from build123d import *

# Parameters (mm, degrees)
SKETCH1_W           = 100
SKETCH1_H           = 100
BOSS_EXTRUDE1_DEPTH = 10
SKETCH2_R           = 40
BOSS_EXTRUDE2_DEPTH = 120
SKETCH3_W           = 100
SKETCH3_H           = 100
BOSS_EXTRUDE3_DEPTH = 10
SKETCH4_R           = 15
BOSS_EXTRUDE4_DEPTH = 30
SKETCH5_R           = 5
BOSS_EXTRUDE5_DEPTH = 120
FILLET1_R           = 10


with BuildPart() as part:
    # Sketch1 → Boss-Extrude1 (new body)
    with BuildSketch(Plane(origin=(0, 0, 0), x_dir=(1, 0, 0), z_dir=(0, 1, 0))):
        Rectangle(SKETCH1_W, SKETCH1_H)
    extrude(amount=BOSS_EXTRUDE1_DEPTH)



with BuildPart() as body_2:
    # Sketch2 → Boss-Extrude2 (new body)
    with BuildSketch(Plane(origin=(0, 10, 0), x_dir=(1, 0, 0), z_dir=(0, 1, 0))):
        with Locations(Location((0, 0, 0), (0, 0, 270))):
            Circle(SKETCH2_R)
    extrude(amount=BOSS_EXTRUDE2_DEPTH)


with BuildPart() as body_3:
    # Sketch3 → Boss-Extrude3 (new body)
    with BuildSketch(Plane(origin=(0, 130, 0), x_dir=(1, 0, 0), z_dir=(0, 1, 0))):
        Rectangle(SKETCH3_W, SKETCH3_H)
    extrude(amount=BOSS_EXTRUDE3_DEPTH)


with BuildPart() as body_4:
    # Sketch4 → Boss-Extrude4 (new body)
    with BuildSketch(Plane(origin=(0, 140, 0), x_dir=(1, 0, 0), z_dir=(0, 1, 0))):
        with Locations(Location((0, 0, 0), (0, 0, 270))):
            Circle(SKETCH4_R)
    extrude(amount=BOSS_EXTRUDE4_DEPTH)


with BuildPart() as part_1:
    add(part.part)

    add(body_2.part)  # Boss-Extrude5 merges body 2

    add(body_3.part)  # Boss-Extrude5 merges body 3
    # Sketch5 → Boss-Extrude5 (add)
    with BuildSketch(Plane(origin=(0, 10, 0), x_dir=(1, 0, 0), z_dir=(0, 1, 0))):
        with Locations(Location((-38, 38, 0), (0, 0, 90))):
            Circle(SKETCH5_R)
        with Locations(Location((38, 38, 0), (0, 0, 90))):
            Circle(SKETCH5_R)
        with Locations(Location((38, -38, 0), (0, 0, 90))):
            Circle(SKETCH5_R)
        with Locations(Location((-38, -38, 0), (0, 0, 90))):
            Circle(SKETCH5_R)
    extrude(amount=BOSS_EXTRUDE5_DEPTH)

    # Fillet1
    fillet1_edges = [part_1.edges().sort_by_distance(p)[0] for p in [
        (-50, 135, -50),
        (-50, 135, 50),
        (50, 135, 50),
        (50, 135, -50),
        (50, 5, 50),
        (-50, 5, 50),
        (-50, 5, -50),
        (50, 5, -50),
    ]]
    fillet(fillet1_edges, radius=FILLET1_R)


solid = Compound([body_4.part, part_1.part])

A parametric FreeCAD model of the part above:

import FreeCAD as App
import Part
import Sketcher
from FreeCAD import Vector


def edges_at(feature, points):
    """Names of the edges that pass closest to the given points."""
    edges = feature.Shape.Edges
    near = lambda p: min(range(len(edges)), key=lambda i: edges[i].distToShape(Part.Vertex(*p))[0])
    return sorted({f"Edge{near(p) + 1}" for p in points})

doc = App.newDocument("Part")
body = doc.addObject("PartDesign::Body", "Body")

# Sketch on XZ plane
sketch1 = body.newObject("Sketcher::SketchObject", "Sketch")
sketch1.AttachmentSupport = (doc.getObject("XZ_Plane"), [""])
sketch1.MapMode = "FlatFace"
sketch1.addGeometry([
    Part.LineSegment(Vector(-50, -50, 0), Vector(-50, 50, 0)),
    Part.LineSegment(Vector(-50, 50, 0), Vector(50, 50, 0)),
    Part.LineSegment(Vector(50, 50, 0), Vector(50, -50, 0)),
    Part.LineSegment(Vector(50, -50, 0), Vector(-50, -50, 0)),
], False)
sketch1.addConstraint([
    Sketcher.Constraint("Coincident", 0, 2, 1, 1),
    Sketcher.Constraint("Coincident", 1, 2, 2, 1),
    Sketcher.Constraint("Coincident", 2, 2, 3, 1),
    Sketcher.Constraint("Coincident", 3, 2, 0, 1),
    Sketcher.Constraint("Vertical", 0),
    Sketcher.Constraint("Horizontal", 1),
    Sketcher.Constraint("Vertical", 2),
    Sketcher.Constraint("Horizontal", 3),
    Sketcher.Constraint("Symmetric", 0, 2, 2, 2, -1, 1),
    Sketcher.Constraint("Equal", 3, 0),
    Sketcher.Constraint("DistanceX", 1, 1, 1, 2, 100.0),
])
pad1 = body.newObject("PartDesign::Pad", "Pad")
pad1.Profile = sketch1
pad1.Length = 10
pad1.Reversed = True
body2 = doc.addObject("PartDesign::Body", "Body001")

# Sketch on XZ plane
sketch2 = body2.newObject("Sketcher::SketchObject", "Sketch001")
sketch2.AttachmentSupport = (doc.getObject("XZ_Plane001"), [""])
sketch2.MapMode = "FlatFace"
sketch2.AttachmentOffset = App.Placement(Vector(0, 0, -10), App.Rotation())
sketch2.addGeometry(Part.Circle(Vector(0, 0, 0), Vector(0, 0, 1), 40), False)
sketch2.addConstraint([
    Sketcher.Constraint("Coincident", 0, 3, -1, 1),
    Sketcher.Constraint("Diameter", 0, 80.0),
])
pad2 = body2.newObject("PartDesign::Pad", "Pad001")
pad2.Profile = sketch2
pad2.Length = 120
pad2.Reversed = True
body3 = doc.addObject("PartDesign::Body", "Body002")

# Sketch on XZ plane
sketch3 = body3.newObject("Sketcher::SketchObject", "Sketch002")
sketch3.AttachmentSupport = (doc.getObject("XZ_Plane002"), [""])
sketch3.MapMode = "FlatFace"
sketch3.AttachmentOffset = App.Placement(Vector(0, 0, -130), App.Rotation())
sketch3.addGeometry([
    Part.LineSegment(Vector(-50, -50, 0), Vector(-50, 50, 0)),
    Part.LineSegment(Vector(-50, 50, 0), Vector(50, 50, 0)),
    Part.LineSegment(Vector(50, 50, 0), Vector(50, -50, 0)),
    Part.LineSegment(Vector(50, -50, 0), Vector(-50, -50, 0)),
], False)
sketch3.addConstraint([
    Sketcher.Constraint("Coincident", 0, 2, 1, 1),
    Sketcher.Constraint("Coincident", 1, 2, 2, 1),
    Sketcher.Constraint("Coincident", 2, 2, 3, 1),
    Sketcher.Constraint("Coincident", 3, 2, 0, 1),
    Sketcher.Constraint("Vertical", 0),
    Sketcher.Constraint("Horizontal", 1),
    Sketcher.Constraint("Vertical", 2),
    Sketcher.Constraint("Horizontal", 3),
    Sketcher.Constraint("Symmetric", 0, 2, 2, 2, -1, 1),
    Sketcher.Constraint("Equal", 3, 0),
    Sketcher.Constraint("DistanceX", 1, 1, 1, 2, 100.0),
])
pad3 = body3.newObject("PartDesign::Pad", "Pad002")
pad3.Profile = sketch3
pad3.Length = 10
pad3.Reversed = True
body4 = doc.addObject("PartDesign::Body", "Body003")

# Sketch on XZ plane
sketch4 = body4.newObject("Sketcher::SketchObject", "Sketch003")
sketch4.AttachmentSupport = (doc.getObject("XZ_Plane003"), [""])
sketch4.MapMode = "FlatFace"
sketch4.AttachmentOffset = App.Placement(Vector(0, 0, -140), App.Rotation())
sketch4.addGeometry(Part.Circle(Vector(0, 0, 0), Vector(0, 0, 1), 15), False)
sketch4.addConstraint([
    Sketcher.Constraint("Coincident", 0, 3, -1, 1),
    Sketcher.Constraint("Diameter", 0, 30.0),
])
pad4 = body4.newObject("PartDesign::Pad", "Pad003")
pad4.Profile = sketch4
pad4.Length = 30
pad4.Reversed = True
doc.recompute()

boolean = body.newObject("PartDesign::Boolean", "Boolean")
boolean.Type = "Fuse"
boolean.addObjects([body2])
doc.recompute()

boolean2 = body.newObject("PartDesign::Boolean", "Boolean001")
boolean2.Type = "Fuse"
boolean2.addObjects([body3])

# Sketch on XZ plane
sketch5 = body.newObject("Sketcher::SketchObject", "Sketch004")
sketch5.AttachmentSupport = (doc.getObject("XZ_Plane"), [""])
sketch5.MapMode = "FlatFace"
sketch5.AttachmentOffset = App.Placement(Vector(0, 0, -10), App.Rotation())
sketch5.addGeometry([
    Part.Circle(Vector(-38, -38, 0), Vector(0, 0, 1), 5),
    Part.Circle(Vector(38, -38, 0), Vector(0, 0, 1), 5),
    Part.Circle(Vector(38, 38, 0), Vector(0, 0, 1), 5),
    Part.Circle(Vector(-38, 38, 0), Vector(0, 0, 1), 5),
], False)
sketch5.addConstraint([
    Sketcher.Constraint("Equal", 0, 1),
    Sketcher.Constraint("Equal", 1, 2),
    Sketcher.Constraint("Equal", 2, 3),
    Sketcher.Constraint("Symmetric", 0, 3, 2, 3, -1, 1),
    Sketcher.Constraint("Symmetric", 1, 3, 3, 3, -1, 1),
    Sketcher.Constraint("Symmetric", 0, 3, 1, 3, -2),
    Sketcher.Constraint("Diameter", 0, 10.0),
    Sketcher.Constraint("DistanceX", 0, 3, -1, 1, 38.0),
    Sketcher.Constraint("DistanceY", 0, 3, -1, 1, 38.0),
])
pad5 = body.newObject("PartDesign::Pad", "Pad004")
pad5.Profile = sketch5
pad5.Length = 120
pad5.Reversed = True
doc.recompute()

fillet = body.newObject("PartDesign::Fillet", "Fillet")
fillet.Base = (pad5, edges_at(pad5, [
    (-50, 135, -50),
    (-50, 135, 50),
    (50, 135, 50),
    (50, 135, -50),
    (50, 5, 50),
    (-50, 5, 50),
    (-50, 5, -50),
    (50, 5, -50),
]))
fillet.Radius = 10

doc.recompute()
